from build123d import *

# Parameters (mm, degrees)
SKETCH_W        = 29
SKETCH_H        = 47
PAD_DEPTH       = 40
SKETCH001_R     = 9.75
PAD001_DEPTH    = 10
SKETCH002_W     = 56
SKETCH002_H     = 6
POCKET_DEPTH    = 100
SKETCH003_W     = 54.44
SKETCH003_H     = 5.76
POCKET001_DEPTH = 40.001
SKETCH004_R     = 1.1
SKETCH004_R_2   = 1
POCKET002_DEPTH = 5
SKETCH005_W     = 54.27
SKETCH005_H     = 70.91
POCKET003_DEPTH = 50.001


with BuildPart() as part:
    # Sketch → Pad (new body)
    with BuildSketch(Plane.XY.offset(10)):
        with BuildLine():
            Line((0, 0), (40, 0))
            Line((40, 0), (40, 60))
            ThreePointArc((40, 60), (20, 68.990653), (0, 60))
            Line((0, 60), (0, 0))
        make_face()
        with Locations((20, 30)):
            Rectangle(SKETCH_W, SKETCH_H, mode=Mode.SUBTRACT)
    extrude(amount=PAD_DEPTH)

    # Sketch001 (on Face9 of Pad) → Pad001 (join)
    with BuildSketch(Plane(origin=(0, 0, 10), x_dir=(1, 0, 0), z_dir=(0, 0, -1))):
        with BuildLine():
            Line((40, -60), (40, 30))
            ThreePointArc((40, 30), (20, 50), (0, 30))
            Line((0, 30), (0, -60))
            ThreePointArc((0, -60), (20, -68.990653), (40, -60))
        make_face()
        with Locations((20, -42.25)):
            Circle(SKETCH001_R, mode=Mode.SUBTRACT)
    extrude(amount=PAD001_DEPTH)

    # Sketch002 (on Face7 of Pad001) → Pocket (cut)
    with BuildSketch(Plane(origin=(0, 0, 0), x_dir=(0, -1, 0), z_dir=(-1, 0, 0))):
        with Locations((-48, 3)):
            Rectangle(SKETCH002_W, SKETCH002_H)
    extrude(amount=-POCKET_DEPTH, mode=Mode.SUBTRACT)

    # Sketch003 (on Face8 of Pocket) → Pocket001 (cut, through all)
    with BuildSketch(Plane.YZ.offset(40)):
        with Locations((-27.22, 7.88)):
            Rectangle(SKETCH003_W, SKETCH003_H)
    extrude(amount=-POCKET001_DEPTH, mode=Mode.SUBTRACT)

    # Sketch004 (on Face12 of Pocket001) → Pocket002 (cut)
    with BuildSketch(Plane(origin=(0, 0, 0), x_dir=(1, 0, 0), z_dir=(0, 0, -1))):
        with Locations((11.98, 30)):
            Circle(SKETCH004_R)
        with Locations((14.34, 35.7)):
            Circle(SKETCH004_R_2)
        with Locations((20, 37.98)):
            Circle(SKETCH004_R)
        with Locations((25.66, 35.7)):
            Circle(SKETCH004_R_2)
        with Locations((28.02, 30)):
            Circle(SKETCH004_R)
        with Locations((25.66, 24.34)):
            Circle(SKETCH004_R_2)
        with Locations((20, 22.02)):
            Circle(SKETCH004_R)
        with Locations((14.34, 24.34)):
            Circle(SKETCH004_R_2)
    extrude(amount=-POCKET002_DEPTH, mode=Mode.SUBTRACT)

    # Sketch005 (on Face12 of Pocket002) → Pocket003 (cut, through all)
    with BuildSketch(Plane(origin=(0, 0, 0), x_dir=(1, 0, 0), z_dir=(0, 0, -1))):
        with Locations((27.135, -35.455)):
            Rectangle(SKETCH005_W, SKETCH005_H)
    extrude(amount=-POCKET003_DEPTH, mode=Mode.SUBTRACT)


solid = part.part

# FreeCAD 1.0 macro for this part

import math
import FreeCAD as App
import Part
import Sketcher

doc = App.newDocument("Part")
body = doc.addObject("PartDesign::Body", "Body")

# Sketch on XY plane
sketch1 = body.newObject("Sketcher::SketchObject", "Sketch")
sketch1.AttachmentSupport = (doc.getObject("XY_Plane"), [""])
sketch1.MapMode = "FlatFace"
sketch1.AttachmentOffset = App.Placement(App.Vector(0, 0, 10), App.Rotation())
sketch1.addGeometry([
    Part.LineSegment(App.Vector(0, 0, 0), App.Vector(40, 0, 0)),  # 0
    Part.LineSegment(App.Vector(40, 0, 0), App.Vector(40, 60, 0)),  # 1
    Part.ArcOfCircle(Part.Circle(App.Vector(20, 42, 0), App.Vector(0, 0, 1), 27), math.radians(42), math.radians(138)),  # 2
    Part.LineSegment(App.Vector(0, 60, 0), App.Vector(0, 0, 0)),  # 3
    Part.LineSegment(App.Vector(34, 6, 0), App.Vector(6, 6, 0)),  # 4
    Part.LineSegment(App.Vector(6, 6, 0), App.Vector(6, 54, 0)),  # 5
    Part.LineSegment(App.Vector(6, 54, 0), App.Vector(34, 54, 0)),  # 6
    Part.LineSegment(App.Vector(34, 54, 0), App.Vector(34, 6, 0)),  # 7
], False)
sketch1.addConstraint([
    Sketcher.Constraint("Coincident", 0, 2, 1, 1),
    Sketcher.Constraint("Coincident", 1, 2, 2, 1),
    Sketcher.Constraint("Coincident", 2, 2, 3, 1),
    Sketcher.Constraint("Coincident", 3, 2, 0, 1),
    Sketcher.Constraint("Coincident", 4, 2, 5, 1),
    Sketcher.Constraint("Coincident", 5, 2, 6, 1),
    Sketcher.Constraint("Coincident", 6, 2, 7, 1),
    Sketcher.Constraint("Coincident", 7, 2, 4, 1),
    Sketcher.Constraint("Horizontal", 0),
    Sketcher.Constraint("Vertical", 1),
    Sketcher.Constraint("Vertical", 3),
    Sketcher.Constraint("Horizontal", 4),
    Sketcher.Constraint("Vertical", 5),
    Sketcher.Constraint("Horizontal", 6),
    Sketcher.Constraint("Vertical", 7),
    Sketcher.Constraint("Coincident", 3, 2, -1, 1),
    Sketcher.Constraint("Horizontal", 1, 2, 2, 2),
    Sketcher.Constraint("DistanceX", 0, 1, 0, 2, 40.0),
    Sketcher.Constraint("DistanceX", 4, 2, 4, 1, 29.0),
    Sketcher.Constraint("DistanceY", 1, 1, 1, 2, 60.0),
    Sketcher.Constraint("DistanceY", 5, 1, 5, 2, 47.0),
    Sketcher.Constraint("DistanceX", -1, 1, 4, 2, 5.5),
    Sketcher.Constraint("DistanceY", -1, 1, 4, 2, 6.5),
    Sketcher.Constraint("DistanceY", -1, 1, 2, 3, 42.250001),
])
pad1 = body.newObject("PartDesign::Pad", "Pad")
pad1.Profile = sketch1
pad1.Length = 40

# Sketch on XY plane
sketch2 = body.newObject("Sketcher::SketchObject", "Sketch001")
sketch2.AttachmentSupport = (doc.getObject("XY_Plane"), [""])
sketch2.MapMode = "FlatFace"
sketch2.AttachmentOffset = App.Placement(App.Vector(0, 0, 10), App.Rotation())
sketch2.addGeometry([
    Part.LineSegment(App.Vector(40, 60, 0), App.Vector(40, -30, 0)),  # 0
    Part.ArcOfCircle(Part.Circle(App.Vector(20, -30, 0), App.Vector(0, 0, 1), 20), math.radians(180), math.radians(360)),  # 1
    Part.LineSegment(App.Vector(0, -30, 0), App.Vector(0, 60, 0)),  # 2
    Part.ArcOfCircle(Part.Circle(App.Vector(20, 42, 0), App.Vector(0, 0, 1), 27), math.radians(42), math.radians(138)),  # 3
    Part.Circle(App.Vector(20, 42, 0), App.Vector(0, 0, 1), 10),  # 4
], False)
sketch2.addConstraint([
    Sketcher.Constraint("Tangent", 0, 2, 1, 2),
    Sketcher.Constraint("Tangent", 1, 1, 2, 1),
    Sketcher.Constraint("Coincident", 2, 2, 3, 2),
    Sketcher.Constraint("Coincident", 3, 1, 0, 1),
    Sketcher.Constraint("Vertical", 0),
    Sketcher.Constraint("Vertical", 2),
    Sketcher.Constraint("Coincident", 4, 3, 3, 3),
    Sketcher.Constraint("PointOnObject", 1, 1, -2),
    Sketcher.Constraint("Horizontal", 2, 2, 3, 1),
    Sketcher.Constraint("Radius", 1, 20.0),
    Sketcher.Constraint("Diameter", 4, 19.5),
    Sketcher.Constraint("DistanceY", 0, 2, 0, 1, 90.0),
    Sketcher.Constraint("DistanceY", 1, 3, -1, 1, 30.0),
    Sketcher.Constraint("DistanceY", -1, 1, 3, 3, 42.250001),
])
pad2 = body.newObject("PartDesign::Pad", "Pad001")
pad2.Profile = sketch2
pad2.Length = 10
pad2.Reversed = True

# Sketch on YZ plane
sketch3 = body.newObject("Sketcher::SketchObject", "Sketch002")
sketch3.AttachmentSupport = (doc.getObject("YZ_Plane"), [""])
sketch3.MapMode = "FlatFace"
sketch3.addGeometry([
    Part.LineSegment(App.Vector(76, 6, 0), App.Vector(76, 0, 0)),
    Part.LineSegment(App.Vector(76, 0, 0), App.Vector(20, 0, 0)),
    Part.LineSegment(App.Vector(20, 0, 0), App.Vector(20, 6, 0)),
    Part.LineSegment(App.Vector(20, 6, 0), App.Vector(76, 6, 0)),
], False)
sketch3.addConstraint([
    Sketcher.Constraint("Coincident", 0, 2, 1, 1),
    Sketcher.Constraint("Coincident", 1, 2, 2, 1),
    Sketcher.Constraint("Coincident", 2, 2, 3, 1),
    Sketcher.Constraint("Coincident", 3, 2, 0, 1),
    Sketcher.Constraint("Vertical", 0),
    Sketcher.Constraint("Horizontal", 1),
    Sketcher.Constraint("Vertical", 2),
    Sketcher.Constraint("Horizontal", 3),
    Sketcher.Constraint("PointOnObject", 0, 2, -1),
    Sketcher.Constraint("DistanceX", 1, 2, 1, 1, 56.0),
    Sketcher.Constraint("DistanceY", 0, 2, 0, 1, 6.0),
    Sketcher.Constraint("DistanceX", -1, 1, 0, 2, 76.0),
])
pocket1 = body.newObject("PartDesign::Pocket", "Pocket")
pocket1.Profile = sketch3
pocket1.Length = 100
pocket1.Reversed = True

# Sketch on YZ plane
sketch4 = body.newObject("Sketcher::SketchObject", "Sketch003")
sketch4.AttachmentSupport = (doc.getObject("YZ_Plane"), [""])
sketch4.MapMode = "FlatFace"
sketch4.AttachmentOffset = App.Placement(App.Vector(0, 0, 40), App.Rotation())
sketch4.addGeometry([
    Part.LineSegment(App.Vector(-54, 11, 0), App.Vector(-54, 5, 0)),
    Part.LineSegment(App.Vector(-54, 5, 0), App.Vector(0, 5, 0)),
    Part.LineSegment(App.Vector(0, 5, 0), App.Vector(0, 11, 0)),
    Part.LineSegment(App.Vector(0, 11, 0), App.Vector(-54, 11, 0)),
], False)
sketch4.addConstraint([
    Sketcher.Constraint("Coincident", 0, 2, 1, 1),
    Sketcher.Constraint("Coincident", 1, 2, 2, 1),
    Sketcher.Constraint("Coincident", 2, 2, 3, 1),
    Sketcher.Constraint("Coincident", 3, 2, 0, 1),
    Sketcher.Constraint("Vertical", 0),
    Sketcher.Constraint("Horizontal", 1),
    Sketcher.Constraint("Vertical", 2),
    Sketcher.Constraint("Horizontal", 3),
    Sketcher.Constraint("PointOnObject", 1, 2, -2),
    Sketcher.Constraint("DistanceY", -1, 1, 0, 2, 5.0),
    Sketcher.Constraint("DistanceX", 1, 1, 1, 2, 54.44),
    Sketcher.Constraint("DistanceY", 0, 2, 0, 1, 5.76),
])
pocket2 = body.newObject("PartDesign::Pocket", "Pocket001")
pocket2.Profile = sketch4
pocket2.Type = "ThroughAll"

# Sketch on XY plane
sketch5 = body.newObject("Sketcher::SketchObject", "Sketch004")
sketch5.AttachmentSupport = (doc.getObject("XY_Plane"), [""])
sketch5.MapMode = "FlatFace"
sketch5.addGeometry([
    Part.Circle(App.Vector(12, -30, 0), App.Vector(0, 0, 1), 1.1),  # 0
    Part.Circle(App.Vector(14.3, -35.7, 0), App.Vector(0, 0, 1), 1),  # 1
    Part.Circle(App.Vector(20, -38, 0), App.Vector(0, 0, 1), 1.1),  # 2
    Part.Circle(App.Vector(25.7, -35.7, 0), App.Vector(0, 0, 1), 1),  # 3
    Part.Circle(App.Vector(28, -30, 0), App.Vector(0, 0, 1), 1.1),  # 4
    Part.Circle(App.Vector(25.7, -24.3, 0), App.Vector(0, 0, 1), 1),  # 5
    Part.Circle(App.Vector(20, -22, 0), App.Vector(0, 0, 1), 1.1),  # 6
    Part.Circle(App.Vector(14.3, -24.3, 0), App.Vector(0, 0, 1), 1),  # 7
], False)
sketch5.addConstraint([
    Sketcher.Constraint("Equal", 0, 2),
    Sketcher.Constraint("Equal", 1, 3),
    Sketcher.Constraint("Equal", 2, 4),
    Sketcher.Constraint("Equal", 3, 5),
    Sketcher.Constraint("Equal", 4, 6),
    Sketcher.Constraint("Equal", 5, 7),
    Sketcher.Constraint("Horizontal", 1, 3, 3, 3),
    Sketcher.Constraint("Horizontal", 0, 3, 4, 3),
    Sketcher.Constraint("Horizontal", 5, 3, 7, 3),
    Sketcher.Constraint("Vertical", 3, 3, 5, 3),
    Sketcher.Constraint("Vertical", 2, 3, 6, 3),
    Sketcher.Constraint("Vertical", 1, 3, 7, 3),
    Sketcher.Constraint("Diameter", 1, 2.0),
    Sketcher.Constraint("Diameter", 0, 2.2),
    Sketcher.Constraint("DistanceY", 0, 3, -1, 1, 30.0),
    Sketcher.Constraint("DistanceX", -1, 1, 2, 3, 20.0),
    Sketcher.Constraint("DistanceY", 1, 3, -1, 1, 35.7),
    Sketcher.Constraint("DistanceX", -1, 1, 0, 3, 11.98),
    Sketcher.Constraint("DistanceX", -1, 1, 1, 3, 14.34),
    Sketcher.Constraint("DistanceY", 2, 3, -1, 1, 37.98),
    Sketcher.Constraint("DistanceX", -1, 1, 3, 3, 25.66),
    Sketcher.Constraint("DistanceX", -1, 1, 4, 3, 28.02),
    Sketcher.Constraint("DistanceY", 5, 3, -1, 1, 24.34),
    Sketcher.Constraint("DistanceY", 6, 3, -1, 1, 22.02),
])
pocket3 = body.newObject("PartDesign::Pocket", "Pocket002")
pocket3.Profile = sketch5
pocket3.Length = 5
pocket3.Reversed = True

# Sketch on XY plane
sketch6 = body.newObject("Sketcher::SketchObject", "Sketch005")
sketch6.AttachmentSupport = (doc.getObject("XY_Plane"), [""])
sketch6.MapMode = "FlatFace"
sketch6.addGeometry([
    Part.LineSegment(App.Vector(0, 0, 0), App.Vector(0, 71, 0)),
    Part.LineSegment(App.Vector(0, 71, 0), App.Vector(54, 71, 0)),
    Part.LineSegment(App.Vector(54, 71, 0), App.Vector(54, 0, 0)),
    Part.LineSegment(App.Vector(54, 0, 0), App.Vector(0, 0, 0)),
], False)
sketch6.addConstraint([
    Sketcher.Constraint("Coincident", 0, 2, 1, 1),
    Sketcher.Constraint("Coincident", 1, 2, 2, 1),
    Sketcher.Constraint("Coincident", 2, 2, 3, 1),
    Sketcher.Constraint("Coincident", 3, 2, 0, 1),
    Sketcher.Constraint("Vertical", 0),
    Sketcher.Constraint("Horizontal", 1),
    Sketcher.Constraint("Vertical", 2),
    Sketcher.Constraint("Horizontal", 3),
    Sketcher.Constraint("Coincident", 3, 2, -1, 1),
    Sketcher.Constraint("DistanceX", 1, 1, 1, 2, 54.27),
    Sketcher.Constraint("DistanceY", 0, 1, 0, 2, 70.91),
])
pocket4 = body.newObject("PartDesign::Pocket", "Pocket003")
pocket4.Profile = sketch6
pocket4.Type = "ThroughAll"
pocket4.Reversed = True

doc.recompute()
